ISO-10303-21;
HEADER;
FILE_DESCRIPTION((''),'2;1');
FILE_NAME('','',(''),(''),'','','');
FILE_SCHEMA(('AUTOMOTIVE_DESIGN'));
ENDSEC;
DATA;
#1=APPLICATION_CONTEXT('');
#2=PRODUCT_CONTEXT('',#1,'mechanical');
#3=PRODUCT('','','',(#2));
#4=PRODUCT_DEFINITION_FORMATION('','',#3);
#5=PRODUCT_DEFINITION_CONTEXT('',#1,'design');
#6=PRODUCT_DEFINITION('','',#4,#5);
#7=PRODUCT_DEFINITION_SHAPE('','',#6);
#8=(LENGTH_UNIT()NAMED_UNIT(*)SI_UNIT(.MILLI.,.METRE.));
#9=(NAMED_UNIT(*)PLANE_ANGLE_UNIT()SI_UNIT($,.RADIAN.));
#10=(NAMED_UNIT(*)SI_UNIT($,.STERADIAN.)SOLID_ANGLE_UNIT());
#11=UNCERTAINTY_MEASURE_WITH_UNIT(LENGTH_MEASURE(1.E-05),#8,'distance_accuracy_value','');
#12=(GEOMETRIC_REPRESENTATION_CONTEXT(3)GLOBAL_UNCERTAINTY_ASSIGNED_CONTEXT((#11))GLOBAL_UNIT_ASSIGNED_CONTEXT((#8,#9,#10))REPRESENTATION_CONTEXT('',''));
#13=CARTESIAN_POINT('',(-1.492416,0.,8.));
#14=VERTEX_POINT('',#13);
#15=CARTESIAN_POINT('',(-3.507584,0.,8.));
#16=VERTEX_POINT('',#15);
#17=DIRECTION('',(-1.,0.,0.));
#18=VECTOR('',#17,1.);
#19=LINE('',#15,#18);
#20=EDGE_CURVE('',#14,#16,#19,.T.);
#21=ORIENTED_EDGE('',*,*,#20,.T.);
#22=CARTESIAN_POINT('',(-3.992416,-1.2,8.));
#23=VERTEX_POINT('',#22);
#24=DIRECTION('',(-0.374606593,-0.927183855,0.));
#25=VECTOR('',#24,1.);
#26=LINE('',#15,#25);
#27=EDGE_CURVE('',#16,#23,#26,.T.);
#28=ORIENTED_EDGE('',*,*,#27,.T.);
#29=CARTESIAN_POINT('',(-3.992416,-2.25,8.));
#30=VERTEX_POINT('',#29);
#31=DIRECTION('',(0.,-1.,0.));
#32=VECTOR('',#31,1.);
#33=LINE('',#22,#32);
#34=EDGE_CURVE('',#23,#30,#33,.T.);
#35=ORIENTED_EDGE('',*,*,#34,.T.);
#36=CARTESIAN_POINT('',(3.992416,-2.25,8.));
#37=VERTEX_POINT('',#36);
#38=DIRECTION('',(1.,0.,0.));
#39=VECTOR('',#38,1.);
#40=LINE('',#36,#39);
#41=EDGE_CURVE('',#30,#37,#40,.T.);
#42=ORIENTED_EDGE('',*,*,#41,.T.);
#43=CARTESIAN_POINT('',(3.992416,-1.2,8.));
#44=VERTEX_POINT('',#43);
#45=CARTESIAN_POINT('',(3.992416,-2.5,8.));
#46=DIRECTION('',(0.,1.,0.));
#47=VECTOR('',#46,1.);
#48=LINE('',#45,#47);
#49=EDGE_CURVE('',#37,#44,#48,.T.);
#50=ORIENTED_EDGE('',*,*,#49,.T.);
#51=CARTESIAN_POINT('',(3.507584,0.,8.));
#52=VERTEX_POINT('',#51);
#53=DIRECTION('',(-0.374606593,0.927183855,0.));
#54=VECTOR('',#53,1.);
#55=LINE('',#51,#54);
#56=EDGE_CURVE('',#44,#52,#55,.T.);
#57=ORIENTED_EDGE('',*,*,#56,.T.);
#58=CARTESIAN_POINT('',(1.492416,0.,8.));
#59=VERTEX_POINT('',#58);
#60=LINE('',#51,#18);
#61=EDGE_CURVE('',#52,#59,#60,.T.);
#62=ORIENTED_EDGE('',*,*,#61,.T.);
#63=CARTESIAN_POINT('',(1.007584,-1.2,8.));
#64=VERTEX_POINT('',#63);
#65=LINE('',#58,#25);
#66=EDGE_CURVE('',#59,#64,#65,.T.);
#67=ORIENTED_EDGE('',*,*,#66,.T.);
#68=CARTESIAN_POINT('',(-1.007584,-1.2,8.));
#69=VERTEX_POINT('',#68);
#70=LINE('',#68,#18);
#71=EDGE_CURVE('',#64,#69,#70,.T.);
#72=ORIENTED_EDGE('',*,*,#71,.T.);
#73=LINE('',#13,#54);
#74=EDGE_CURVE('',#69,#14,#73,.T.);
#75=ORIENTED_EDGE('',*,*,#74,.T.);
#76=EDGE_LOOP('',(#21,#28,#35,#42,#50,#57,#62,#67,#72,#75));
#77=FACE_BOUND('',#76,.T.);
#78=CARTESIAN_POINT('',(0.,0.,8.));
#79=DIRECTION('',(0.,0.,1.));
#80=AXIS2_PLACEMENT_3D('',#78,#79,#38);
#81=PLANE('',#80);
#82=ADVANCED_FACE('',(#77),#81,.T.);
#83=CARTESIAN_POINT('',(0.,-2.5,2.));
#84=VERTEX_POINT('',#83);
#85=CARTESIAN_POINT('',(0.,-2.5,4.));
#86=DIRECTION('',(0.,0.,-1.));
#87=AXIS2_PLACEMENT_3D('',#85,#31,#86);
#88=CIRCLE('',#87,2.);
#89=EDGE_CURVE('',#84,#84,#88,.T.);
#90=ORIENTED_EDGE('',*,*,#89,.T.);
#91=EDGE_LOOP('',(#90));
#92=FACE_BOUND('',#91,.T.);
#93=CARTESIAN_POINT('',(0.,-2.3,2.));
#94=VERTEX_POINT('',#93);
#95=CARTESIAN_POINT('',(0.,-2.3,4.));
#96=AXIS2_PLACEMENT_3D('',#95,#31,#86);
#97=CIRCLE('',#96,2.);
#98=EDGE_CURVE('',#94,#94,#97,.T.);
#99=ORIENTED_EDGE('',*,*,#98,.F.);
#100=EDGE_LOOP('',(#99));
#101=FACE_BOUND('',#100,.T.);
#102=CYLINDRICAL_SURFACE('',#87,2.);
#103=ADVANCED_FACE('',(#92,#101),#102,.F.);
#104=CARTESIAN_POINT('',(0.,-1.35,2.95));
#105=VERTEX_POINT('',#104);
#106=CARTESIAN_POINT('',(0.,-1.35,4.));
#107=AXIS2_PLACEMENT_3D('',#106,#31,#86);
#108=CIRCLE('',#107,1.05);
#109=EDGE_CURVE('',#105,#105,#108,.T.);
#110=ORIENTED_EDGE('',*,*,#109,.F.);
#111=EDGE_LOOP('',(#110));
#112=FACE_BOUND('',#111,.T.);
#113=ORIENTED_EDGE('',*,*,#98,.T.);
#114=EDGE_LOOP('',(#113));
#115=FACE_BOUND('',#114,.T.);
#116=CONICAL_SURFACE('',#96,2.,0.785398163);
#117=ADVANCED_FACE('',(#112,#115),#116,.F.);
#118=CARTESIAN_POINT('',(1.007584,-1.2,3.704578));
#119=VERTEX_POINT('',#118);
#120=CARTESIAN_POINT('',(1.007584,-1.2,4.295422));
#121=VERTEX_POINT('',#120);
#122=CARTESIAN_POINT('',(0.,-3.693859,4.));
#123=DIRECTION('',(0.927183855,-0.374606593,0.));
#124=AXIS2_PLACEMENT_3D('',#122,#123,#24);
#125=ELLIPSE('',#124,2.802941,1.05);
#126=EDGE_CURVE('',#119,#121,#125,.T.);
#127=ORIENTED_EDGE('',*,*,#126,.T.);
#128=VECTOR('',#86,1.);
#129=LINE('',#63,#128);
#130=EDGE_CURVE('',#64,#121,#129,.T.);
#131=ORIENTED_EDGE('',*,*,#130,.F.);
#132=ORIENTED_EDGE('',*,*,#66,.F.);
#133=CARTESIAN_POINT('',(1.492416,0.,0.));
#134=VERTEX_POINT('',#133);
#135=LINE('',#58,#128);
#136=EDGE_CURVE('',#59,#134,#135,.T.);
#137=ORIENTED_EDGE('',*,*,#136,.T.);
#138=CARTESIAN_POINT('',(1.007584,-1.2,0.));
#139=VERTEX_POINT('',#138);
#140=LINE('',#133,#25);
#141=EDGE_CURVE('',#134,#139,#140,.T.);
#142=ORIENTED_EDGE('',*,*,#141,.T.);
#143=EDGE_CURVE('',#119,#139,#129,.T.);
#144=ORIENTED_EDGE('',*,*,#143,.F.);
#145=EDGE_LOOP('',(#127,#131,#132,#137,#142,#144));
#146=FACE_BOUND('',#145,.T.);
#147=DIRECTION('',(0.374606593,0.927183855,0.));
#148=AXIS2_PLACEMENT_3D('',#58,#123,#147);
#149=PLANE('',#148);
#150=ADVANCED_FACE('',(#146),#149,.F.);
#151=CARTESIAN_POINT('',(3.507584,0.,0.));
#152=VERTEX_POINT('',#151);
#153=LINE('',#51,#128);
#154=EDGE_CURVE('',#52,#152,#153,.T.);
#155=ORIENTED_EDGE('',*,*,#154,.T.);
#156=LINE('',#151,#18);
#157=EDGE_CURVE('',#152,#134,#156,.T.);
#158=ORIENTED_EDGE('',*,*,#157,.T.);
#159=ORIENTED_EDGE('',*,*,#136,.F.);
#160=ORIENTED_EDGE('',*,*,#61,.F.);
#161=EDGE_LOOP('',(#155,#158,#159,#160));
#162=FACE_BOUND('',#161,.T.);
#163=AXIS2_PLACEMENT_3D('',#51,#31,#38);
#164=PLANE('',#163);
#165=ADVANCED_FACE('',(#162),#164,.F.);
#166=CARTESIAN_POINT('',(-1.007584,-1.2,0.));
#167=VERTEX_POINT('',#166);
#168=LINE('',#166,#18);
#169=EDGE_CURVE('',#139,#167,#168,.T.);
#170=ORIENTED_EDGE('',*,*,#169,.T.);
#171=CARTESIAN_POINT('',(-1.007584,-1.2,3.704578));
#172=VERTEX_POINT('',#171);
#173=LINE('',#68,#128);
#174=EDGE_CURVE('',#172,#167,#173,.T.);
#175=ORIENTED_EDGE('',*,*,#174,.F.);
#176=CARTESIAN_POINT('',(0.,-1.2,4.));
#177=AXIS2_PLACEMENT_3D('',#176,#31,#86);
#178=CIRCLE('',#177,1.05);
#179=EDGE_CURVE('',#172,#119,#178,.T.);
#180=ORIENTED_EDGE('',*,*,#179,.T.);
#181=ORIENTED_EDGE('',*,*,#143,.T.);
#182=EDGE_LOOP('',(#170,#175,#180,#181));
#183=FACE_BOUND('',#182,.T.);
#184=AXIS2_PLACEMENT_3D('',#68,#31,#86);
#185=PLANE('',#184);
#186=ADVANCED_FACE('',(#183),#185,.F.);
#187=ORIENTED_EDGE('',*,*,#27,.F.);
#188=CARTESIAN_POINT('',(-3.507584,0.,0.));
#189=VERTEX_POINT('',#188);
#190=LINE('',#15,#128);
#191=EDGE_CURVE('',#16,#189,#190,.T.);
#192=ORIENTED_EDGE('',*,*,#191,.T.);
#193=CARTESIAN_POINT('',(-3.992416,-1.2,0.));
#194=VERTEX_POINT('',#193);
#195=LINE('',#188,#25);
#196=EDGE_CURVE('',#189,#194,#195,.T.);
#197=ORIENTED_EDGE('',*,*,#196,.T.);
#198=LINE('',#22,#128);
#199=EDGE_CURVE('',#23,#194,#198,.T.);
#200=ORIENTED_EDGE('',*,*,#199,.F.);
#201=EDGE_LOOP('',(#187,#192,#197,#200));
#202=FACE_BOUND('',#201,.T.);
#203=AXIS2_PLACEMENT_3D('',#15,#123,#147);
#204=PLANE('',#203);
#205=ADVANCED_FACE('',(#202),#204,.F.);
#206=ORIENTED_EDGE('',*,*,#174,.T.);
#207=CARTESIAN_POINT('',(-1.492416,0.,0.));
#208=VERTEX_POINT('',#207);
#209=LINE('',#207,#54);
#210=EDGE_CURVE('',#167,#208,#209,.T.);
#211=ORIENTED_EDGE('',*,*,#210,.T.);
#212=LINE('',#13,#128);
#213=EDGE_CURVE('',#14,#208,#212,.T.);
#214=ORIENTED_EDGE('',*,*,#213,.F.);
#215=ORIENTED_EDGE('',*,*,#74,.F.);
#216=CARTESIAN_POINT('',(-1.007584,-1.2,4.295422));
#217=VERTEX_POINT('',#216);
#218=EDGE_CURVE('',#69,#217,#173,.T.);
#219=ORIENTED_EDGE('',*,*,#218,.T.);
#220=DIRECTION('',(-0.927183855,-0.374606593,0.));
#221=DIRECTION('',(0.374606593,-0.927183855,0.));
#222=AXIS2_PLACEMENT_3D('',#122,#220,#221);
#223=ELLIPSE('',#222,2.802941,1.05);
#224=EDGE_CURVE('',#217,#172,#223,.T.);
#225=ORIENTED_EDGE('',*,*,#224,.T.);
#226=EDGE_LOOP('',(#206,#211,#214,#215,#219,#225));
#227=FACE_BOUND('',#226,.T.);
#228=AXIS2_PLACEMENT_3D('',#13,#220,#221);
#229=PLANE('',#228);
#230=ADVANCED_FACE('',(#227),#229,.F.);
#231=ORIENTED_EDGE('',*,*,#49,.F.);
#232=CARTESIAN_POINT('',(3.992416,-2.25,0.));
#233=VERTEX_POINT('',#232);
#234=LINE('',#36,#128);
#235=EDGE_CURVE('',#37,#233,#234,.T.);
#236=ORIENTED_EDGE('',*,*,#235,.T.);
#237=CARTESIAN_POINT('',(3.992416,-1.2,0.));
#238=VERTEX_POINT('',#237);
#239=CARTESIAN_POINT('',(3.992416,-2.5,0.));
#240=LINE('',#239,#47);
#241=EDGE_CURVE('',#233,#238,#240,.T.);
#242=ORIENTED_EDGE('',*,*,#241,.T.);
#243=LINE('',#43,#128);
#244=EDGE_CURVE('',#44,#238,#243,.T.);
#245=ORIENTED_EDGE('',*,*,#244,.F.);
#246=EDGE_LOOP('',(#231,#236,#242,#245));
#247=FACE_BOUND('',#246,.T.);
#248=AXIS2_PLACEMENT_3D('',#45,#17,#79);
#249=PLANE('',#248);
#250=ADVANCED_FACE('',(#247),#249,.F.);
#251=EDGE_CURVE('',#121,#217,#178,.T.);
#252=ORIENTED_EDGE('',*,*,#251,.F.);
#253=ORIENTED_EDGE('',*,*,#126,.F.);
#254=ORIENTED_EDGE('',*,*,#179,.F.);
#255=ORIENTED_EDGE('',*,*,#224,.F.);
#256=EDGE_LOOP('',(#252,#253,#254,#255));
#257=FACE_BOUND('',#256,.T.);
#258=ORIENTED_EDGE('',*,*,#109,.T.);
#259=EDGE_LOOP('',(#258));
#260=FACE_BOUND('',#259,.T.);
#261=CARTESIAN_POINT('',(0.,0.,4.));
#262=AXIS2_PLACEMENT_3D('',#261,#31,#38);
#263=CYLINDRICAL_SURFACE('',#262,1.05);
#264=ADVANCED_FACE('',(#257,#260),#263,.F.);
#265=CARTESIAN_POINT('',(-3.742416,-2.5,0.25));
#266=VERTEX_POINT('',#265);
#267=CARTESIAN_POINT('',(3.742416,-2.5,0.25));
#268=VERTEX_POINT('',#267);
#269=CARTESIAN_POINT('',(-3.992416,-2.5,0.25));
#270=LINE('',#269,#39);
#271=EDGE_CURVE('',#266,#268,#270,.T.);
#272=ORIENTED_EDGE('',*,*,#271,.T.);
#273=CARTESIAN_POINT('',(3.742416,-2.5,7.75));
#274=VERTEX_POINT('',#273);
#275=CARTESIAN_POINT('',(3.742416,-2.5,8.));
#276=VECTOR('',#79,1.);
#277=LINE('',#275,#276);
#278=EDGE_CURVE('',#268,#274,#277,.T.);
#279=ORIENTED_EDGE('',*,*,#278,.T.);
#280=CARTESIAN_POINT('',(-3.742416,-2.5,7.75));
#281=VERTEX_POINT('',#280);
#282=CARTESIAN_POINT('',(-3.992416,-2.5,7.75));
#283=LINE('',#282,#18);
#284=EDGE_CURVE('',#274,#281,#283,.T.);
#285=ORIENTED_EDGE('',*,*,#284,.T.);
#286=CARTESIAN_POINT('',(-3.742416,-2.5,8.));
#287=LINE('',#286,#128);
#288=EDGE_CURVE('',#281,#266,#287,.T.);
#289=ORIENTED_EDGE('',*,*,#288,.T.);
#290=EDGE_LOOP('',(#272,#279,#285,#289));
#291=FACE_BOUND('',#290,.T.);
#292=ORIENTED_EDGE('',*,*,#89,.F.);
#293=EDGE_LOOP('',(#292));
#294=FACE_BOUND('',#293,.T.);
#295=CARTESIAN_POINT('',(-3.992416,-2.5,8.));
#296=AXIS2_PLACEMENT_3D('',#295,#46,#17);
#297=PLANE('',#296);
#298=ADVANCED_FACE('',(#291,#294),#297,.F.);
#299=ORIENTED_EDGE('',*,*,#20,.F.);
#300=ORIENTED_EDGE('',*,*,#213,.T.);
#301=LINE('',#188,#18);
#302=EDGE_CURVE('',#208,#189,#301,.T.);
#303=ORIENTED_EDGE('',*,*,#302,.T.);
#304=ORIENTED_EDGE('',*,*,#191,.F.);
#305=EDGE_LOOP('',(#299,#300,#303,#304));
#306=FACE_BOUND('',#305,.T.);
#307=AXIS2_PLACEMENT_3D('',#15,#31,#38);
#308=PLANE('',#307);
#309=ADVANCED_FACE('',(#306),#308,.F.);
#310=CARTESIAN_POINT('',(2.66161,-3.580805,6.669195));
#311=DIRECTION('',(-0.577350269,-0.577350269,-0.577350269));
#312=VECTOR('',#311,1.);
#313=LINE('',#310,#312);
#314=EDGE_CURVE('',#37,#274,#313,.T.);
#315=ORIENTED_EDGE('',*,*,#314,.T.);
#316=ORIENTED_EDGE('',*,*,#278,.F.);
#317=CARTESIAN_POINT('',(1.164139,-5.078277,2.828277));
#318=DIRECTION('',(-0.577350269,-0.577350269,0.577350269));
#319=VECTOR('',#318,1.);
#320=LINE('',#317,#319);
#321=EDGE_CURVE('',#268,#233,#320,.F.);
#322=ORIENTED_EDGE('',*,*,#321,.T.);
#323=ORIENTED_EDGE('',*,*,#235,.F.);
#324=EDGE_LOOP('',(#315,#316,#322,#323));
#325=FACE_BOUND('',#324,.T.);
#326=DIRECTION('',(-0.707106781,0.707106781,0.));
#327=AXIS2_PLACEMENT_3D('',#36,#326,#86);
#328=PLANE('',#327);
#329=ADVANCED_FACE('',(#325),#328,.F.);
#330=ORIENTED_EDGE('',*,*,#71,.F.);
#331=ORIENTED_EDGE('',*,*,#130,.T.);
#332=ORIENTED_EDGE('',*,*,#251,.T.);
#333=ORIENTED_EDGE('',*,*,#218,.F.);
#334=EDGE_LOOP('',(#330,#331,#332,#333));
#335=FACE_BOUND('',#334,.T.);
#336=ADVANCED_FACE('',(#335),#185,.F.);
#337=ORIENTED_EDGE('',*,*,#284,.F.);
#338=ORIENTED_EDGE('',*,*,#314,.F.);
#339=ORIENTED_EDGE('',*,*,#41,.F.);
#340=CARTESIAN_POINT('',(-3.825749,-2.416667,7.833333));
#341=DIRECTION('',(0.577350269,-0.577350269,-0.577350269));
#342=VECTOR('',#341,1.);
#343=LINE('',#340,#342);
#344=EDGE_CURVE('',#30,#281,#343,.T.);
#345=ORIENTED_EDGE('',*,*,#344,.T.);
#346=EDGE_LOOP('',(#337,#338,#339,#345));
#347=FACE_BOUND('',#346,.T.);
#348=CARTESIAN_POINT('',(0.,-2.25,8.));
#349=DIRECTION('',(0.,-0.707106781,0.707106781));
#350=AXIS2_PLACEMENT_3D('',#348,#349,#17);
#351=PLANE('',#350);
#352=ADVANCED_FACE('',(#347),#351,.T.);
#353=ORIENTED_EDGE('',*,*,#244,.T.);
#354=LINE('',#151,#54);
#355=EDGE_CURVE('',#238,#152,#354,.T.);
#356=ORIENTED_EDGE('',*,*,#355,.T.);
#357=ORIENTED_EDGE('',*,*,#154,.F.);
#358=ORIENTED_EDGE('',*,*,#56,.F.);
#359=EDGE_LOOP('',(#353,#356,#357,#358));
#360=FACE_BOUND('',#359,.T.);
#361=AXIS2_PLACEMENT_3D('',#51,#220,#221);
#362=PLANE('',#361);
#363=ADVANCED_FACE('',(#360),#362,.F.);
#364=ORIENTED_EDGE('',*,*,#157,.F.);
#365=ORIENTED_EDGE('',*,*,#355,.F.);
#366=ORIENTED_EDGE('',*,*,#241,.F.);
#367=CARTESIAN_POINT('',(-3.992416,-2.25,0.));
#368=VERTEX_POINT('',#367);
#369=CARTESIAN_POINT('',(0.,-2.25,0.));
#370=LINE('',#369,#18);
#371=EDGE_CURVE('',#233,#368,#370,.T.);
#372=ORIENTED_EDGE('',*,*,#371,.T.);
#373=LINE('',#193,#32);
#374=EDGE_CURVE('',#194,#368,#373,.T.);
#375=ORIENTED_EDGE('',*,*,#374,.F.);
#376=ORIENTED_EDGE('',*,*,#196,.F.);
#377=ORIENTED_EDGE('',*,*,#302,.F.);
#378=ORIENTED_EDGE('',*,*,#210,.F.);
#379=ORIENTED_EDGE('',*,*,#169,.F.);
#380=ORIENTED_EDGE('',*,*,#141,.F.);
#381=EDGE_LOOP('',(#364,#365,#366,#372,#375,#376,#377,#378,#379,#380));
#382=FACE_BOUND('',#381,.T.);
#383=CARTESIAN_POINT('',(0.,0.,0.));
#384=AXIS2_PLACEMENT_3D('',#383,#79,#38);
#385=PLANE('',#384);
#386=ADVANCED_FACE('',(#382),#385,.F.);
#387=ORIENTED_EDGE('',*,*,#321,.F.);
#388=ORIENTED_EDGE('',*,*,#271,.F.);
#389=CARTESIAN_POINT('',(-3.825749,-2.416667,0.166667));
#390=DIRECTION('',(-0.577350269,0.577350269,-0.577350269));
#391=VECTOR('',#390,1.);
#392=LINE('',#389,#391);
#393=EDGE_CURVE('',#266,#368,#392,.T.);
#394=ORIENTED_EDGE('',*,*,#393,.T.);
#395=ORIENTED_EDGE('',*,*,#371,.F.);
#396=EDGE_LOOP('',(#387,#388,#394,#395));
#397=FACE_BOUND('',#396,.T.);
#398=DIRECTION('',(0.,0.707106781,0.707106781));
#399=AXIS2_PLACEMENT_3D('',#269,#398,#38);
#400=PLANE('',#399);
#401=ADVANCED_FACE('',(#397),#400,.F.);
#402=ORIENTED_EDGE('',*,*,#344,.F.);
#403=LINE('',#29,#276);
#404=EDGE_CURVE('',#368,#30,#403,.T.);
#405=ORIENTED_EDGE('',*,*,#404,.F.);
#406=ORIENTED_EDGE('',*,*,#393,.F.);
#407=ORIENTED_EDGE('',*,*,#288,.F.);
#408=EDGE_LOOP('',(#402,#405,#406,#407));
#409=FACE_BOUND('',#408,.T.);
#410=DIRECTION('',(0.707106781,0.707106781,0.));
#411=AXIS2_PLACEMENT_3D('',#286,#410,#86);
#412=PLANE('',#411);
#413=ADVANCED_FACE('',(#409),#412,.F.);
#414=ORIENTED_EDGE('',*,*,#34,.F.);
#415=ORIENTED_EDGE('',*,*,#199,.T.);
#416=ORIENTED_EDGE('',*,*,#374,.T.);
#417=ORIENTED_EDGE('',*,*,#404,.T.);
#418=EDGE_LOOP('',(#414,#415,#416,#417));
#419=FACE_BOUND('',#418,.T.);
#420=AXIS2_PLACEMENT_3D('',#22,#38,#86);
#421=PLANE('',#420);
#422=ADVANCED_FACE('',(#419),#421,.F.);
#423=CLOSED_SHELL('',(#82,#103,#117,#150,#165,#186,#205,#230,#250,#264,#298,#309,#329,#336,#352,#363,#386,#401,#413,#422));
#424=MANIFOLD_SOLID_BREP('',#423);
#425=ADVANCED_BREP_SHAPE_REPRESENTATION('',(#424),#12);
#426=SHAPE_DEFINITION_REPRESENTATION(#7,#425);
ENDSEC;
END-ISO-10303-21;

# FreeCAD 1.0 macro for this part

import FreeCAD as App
import Part
import Sketcher
from FreeCAD import Vector
Q = App.Units.Quantity


def edges_at(feature, points):
    """Names of the edges that pass closest to the given points."""
    edges = feature.Shape.Edges
    near = lambda p: min(range(len(edges)), key=lambda i: edges[i].distToShape(Part.Vertex(*p))[0])
    return sorted({f"Edge{near(p) + 1}" for p in points})

doc = App.newDocument("Part")
body = doc.addObject("PartDesign::Body", "Body")

# Sketch on XY plane
sketch1 = body.newObject("Sketcher::SketchObject", "Sketch")
sketch1.AttachmentSupport = (doc.getObject("XY_Plane"), [""])
sketch1.MapMode = "FlatFace"
sketch1.addGeometry([
    Part.LineSegment(Vector(-1.5, 0, 0), Vector(-3.5, 0, 0)),  # 0
    Part.LineSegment(Vector(-3.5, 0, 0), Vector(-4, -1.2, 0)),  # 1
    Part.LineSegment(Vector(-4, -1.2, 0), Vector(-4, -2.5, 0)),  # 2
    Part.LineSegment(Vector(-4, -2.5, 0), Vector(4, -2.5, 0)),  # 3
    Part.LineSegment(Vector(4, -2.5, 0), Vector(4, -1.2, 0)),  # 4
    Part.LineSegment(Vector(4, -1.2, 0), Vector(3.5, 0, 0)),  # 5
    Part.LineSegment(Vector(3.5, 0, 0), Vector(1.5, 0, 0)),  # 6
    Part.LineSegment(Vector(1.5, 0, 0), Vector(1, -1.2, 0)),  # 7
    Part.LineSegment(Vector(1, -1.2, 0), Vector(-1, -1.2, 0)),  # 8
    Part.LineSegment(Vector(-1, -1.2, 0), Vector(-1.5, 0, 0)),  # 9
], False)
sketch1.addConstraint([
    Sketcher.Constraint("Coincident", 0, 2, 1, 1),
    Sketcher.Constraint("Coincident", 1, 2, 2, 1),
    Sketcher.Constraint("Coincident", 2, 2, 3, 1),
    Sketcher.Constraint("Coincident", 3, 2, 4, 1),
    Sketcher.Constraint("Coincident", 4, 2, 5, 1),
    Sketcher.Constraint("Coincident", 5, 2, 6, 1),
    Sketcher.Constraint("Coincident", 6, 2, 7, 1),
    Sketcher.Constraint("Coincident", 7, 2, 8, 1),
    Sketcher.Constraint("Coincident", 8, 2, 9, 1),
    Sketcher.Constraint("Coincident", 9, 2, 0, 1),
    Sketcher.Constraint("Horizontal", 0),
    Sketcher.Constraint("Vertical", 2),
    Sketcher.Constraint("Horizontal", 3),
    Sketcher.Constraint("Vertical", 4),
    Sketcher.Constraint("Horizontal", 6),
    Sketcher.Constraint("Horizontal", 8),
    Sketcher.Constraint("Symmetric", 0, 2, 5, 2, -1, 1),
    Sketcher.Constraint("Symmetric", 1, 2, 4, 2, -2),
    Sketcher.Constraint("Symmetric", 6, 2, 9, 2, -2),
    Sketcher.Constraint("Parallel", 1, 7),
    Sketcher.Constraint("Parallel", 5, 9),
    Sketcher.Constraint("Horizontal", 4, 2, 7, 2),
    Sketcher.Constraint("Equal", 6, 8),
    Sketcher.Constraint("Angle", 1, Q("-112 deg")),
    Sketcher.Constraint("DistanceY", 2, 2, 2, 1, 1.3),
    Sketcher.Constraint("DistanceX", 0, 2, 6, 2, 5.0),
    Sketcher.Constraint("DistanceY", 1, 2, -1, 1, 1.2),
])
pad1 = body.newObject("PartDesign::Pad", "Pad")
pad1.Profile = sketch1
pad1.Length = 8

# Sketch on XZ plane
sketch2 = body.newObject("Sketcher::SketchObject", "Sketch001")
sketch2.AttachmentSupport = (doc.getObject("XZ_Plane"), [""])
sketch2.MapMode = "FlatFace"
sketch2.AttachmentOffset = App.Placement(Vector(0, 0, 2.5), App.Rotation())
sketch2.addGeometry(Part.Circle(Vector(0, 4, 0), Vector(0, 0, 1), 1.1), False)
sketch2.addConstraint([
    Sketcher.Constraint("PointOnObject", 0, 3, -2),
    Sketcher.Constraint("Diameter", 0, 2.1),
    Sketcher.Constraint("DistanceY", -1, 1, 0, 3, 4.0),
])
pocket1 = body.newObject("PartDesign::Pocket", "Pocket")
pocket1.Profile = sketch2
pocket1.Type = "ThroughAll"

# Sketch on YZ plane
sketch3 = body.newObject("Sketcher::SketchObject", "Sketch002")
sketch3.AttachmentSupport = (doc.getObject("YZ_Plane"), [""])
sketch3.MapMode = "FlatFace"
sketch3.addGeometry([
    Part.LineSegment(Vector(-2.5, 4, 0), Vector(-2.5, 2, 0)),  # 0
    Part.LineSegment(Vector(-2.5, 2, 0), Vector(-2.3, 2, 0)),  # 1
    Part.LineSegment(Vector(-2.3, 2, 0), Vector(-1.3, 3, 0)),  # 2
    Part.LineSegment(Vector(-1.3, 3, 0), Vector(-1.3, 4, 0)),  # 3
    Part.LineSegment(Vector(-1.3, 4, 0), Vector(-2.5, 4, 0)),  # 4
], False)
sketch3.addGeometry(Part.LineSegment(Vector(-2.5, 4, 0), Vector(-1.3, 4, 0)), True)  # axis
sketch3.addConstraint([
    Sketcher.Constraint("Coincident", 0, 2, 1, 1),
    Sketcher.Constraint("Coincident", 1, 2, 2, 1),
    Sketcher.Constraint("Coincident", 2, 2, 3, 1),
    Sketcher.Constraint("Coincident", 3, 2, 4, 1),
    Sketcher.Constraint("Coincident", 4, 2, 0, 1),
    Sketcher.Constraint("Vertical", 0),
    Sketcher.Constraint("Horizontal", 1),
    Sketcher.Constraint("Vertical", 3),
    Sketcher.Constraint("Horizontal", 4),
    Sketcher.Constraint("Horizontal", 5),
    Sketcher.Constraint("Coincident", 5, 1, 4, 2),
    Sketcher.Constraint("Vertical", 2, 2, 5, 2),
    Sketcher.Constraint("DistanceY", 0, 2, 0, 1, 2.0),
    Sketcher.Constraint("DistanceY", 3, 1, 3, 2, 1.0),
    Sketcher.Constraint("Angle", 2, Q("45 deg")),
    Sketcher.Constraint("DistanceX", 1, 1, 1, 2, 0.2),
    Sketcher.Constraint("DistanceY", -1, 1, 0, 2, 2.0),
    Sketcher.Constraint("DistanceX", 0, 2, -1, 1, 2.5),
])
groove = body.newObject("PartDesign::Groove", "Groove")
groove.Profile = sketch3
groove.ReferenceAxis = (sketch3, ["Axis0"])
groove.Angle = 360
doc.recompute()

chamfer = body.newObject("PartDesign::Chamfer", "Chamfer")
chamfer.Base = (groove, edges_at(groove, [
    (3.992, -2.5, 4),
    (-3.992, -2.5, 4),
    (0, -2.5, 8),
    (0, -2.5, 0),
]))
chamfer.Size = 0.25

doc.recompute()
